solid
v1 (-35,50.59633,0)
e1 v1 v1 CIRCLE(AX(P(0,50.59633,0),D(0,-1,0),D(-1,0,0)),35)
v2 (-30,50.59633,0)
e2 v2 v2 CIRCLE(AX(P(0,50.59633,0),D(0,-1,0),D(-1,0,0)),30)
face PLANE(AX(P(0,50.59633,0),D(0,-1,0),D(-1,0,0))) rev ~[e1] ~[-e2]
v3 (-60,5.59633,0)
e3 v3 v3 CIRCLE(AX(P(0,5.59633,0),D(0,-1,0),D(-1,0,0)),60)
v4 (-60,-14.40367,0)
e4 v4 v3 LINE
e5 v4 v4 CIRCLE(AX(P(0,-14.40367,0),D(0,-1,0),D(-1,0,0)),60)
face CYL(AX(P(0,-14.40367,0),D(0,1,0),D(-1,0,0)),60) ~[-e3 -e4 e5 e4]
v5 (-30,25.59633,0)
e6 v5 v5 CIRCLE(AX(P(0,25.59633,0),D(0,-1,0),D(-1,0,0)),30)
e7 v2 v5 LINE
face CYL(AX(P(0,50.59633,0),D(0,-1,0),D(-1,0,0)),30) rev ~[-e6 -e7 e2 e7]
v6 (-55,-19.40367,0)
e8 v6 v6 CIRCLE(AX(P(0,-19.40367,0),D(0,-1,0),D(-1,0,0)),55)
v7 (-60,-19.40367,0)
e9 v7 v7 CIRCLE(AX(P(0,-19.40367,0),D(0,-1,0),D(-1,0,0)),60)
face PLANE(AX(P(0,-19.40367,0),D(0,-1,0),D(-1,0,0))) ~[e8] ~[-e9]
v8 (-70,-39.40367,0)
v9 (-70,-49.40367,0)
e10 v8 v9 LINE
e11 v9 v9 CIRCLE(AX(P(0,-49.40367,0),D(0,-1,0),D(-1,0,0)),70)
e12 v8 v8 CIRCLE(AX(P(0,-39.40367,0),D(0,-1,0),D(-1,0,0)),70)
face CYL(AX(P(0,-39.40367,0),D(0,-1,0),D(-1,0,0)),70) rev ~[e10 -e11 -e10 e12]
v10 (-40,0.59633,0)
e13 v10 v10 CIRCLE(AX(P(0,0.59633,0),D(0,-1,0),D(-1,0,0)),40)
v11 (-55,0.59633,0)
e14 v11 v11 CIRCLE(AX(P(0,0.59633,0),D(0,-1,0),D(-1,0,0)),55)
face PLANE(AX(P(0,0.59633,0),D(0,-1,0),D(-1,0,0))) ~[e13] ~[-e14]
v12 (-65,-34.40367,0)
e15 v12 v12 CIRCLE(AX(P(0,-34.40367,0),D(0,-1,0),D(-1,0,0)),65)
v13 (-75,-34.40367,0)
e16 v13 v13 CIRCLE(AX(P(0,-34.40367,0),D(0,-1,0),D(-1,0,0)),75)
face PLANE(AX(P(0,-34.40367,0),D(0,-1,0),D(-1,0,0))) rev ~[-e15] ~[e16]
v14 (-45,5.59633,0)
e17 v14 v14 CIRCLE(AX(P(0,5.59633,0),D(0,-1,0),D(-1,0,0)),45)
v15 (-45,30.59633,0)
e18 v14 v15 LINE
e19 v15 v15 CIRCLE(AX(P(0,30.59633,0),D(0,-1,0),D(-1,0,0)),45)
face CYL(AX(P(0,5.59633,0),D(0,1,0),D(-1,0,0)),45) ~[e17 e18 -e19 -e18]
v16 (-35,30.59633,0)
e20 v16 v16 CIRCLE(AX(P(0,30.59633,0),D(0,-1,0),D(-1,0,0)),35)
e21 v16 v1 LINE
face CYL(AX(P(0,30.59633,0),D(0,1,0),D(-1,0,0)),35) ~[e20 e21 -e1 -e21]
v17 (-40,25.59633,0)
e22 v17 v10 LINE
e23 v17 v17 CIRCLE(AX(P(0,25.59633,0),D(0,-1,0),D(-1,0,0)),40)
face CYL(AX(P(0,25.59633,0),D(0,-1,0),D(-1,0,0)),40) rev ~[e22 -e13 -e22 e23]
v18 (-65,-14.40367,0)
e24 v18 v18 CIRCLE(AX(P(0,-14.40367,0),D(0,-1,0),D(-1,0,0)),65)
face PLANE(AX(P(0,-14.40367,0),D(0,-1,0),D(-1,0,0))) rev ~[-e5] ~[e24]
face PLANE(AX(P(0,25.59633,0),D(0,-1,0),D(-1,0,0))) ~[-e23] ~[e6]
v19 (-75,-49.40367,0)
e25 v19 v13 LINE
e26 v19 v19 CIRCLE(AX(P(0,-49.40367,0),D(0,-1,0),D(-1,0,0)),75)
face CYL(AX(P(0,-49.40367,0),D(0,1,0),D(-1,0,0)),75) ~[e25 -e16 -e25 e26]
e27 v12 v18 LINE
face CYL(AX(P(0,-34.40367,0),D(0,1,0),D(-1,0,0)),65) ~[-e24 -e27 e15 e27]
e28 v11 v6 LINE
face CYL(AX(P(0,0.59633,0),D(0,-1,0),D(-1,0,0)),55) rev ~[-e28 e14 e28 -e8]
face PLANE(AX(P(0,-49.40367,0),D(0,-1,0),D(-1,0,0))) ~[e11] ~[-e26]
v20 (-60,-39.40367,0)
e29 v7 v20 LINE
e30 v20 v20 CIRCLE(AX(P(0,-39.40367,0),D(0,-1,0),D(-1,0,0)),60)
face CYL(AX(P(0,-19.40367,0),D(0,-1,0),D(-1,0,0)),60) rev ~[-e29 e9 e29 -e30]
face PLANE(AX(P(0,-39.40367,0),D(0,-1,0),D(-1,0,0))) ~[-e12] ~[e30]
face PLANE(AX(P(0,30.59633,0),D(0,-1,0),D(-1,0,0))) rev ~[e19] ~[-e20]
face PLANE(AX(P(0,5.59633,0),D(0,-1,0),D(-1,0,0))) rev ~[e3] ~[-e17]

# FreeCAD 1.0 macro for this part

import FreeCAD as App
import Part
import Sketcher
Q = App.Units.Quantity


def add_polygon(sketch, points):
    """Adds a closed chain of lines whose ends are joined by coincident constraints."""
    first, n = sketch.GeometryCount, len(points)
    for a, b in zip(points, points[1:] + points[:1]):
        sketch.addGeometry(Part.LineSegment(App.Vector(*a, 0), App.Vector(*b, 0)), False)
    for i in range(n):
        sketch.addConstraint(Sketcher.Constraint("Coincident", first + i, 2, first + (i + 1) % n, 1))

doc = App.newDocument("Part")
body = doc.addObject("PartDesign::Body", "Body")

# Sketch on XY plane
sketch1 = doc.addObject("Sketcher::SketchObject", "Sketch")
body.addObject(sketch1)
sketch1.AttachmentSupport = (doc.XY_Plane, [""])
sketch1.MapMode = "FlatFace"
add_polygon(sketch1, [(-75, -34.40367), (-75, -49.40367), (-70, -49.40367), (-70, -39.40367), (-60, -39.40367), (-60, -19.40367), (-55, -19.40367), (-55, 0.59633), (-40, 0.59633), (-40, 25.59633), (-30, 25.59633), (-30, 50.59633), (-35, 50.59633), (-35, 30.59633), (-45, 30.59633), (-45, 5.59633), (-60, 5.59633), (-60, -14.40367), (-65, -14.40367), (-65, -34.40367)])  # lines 0-19
sketch1.addConstraint(Sketcher.Constraint("Vertical", 0))
sketch1.addConstraint(Sketcher.Constraint("Horizontal", 1))
sketch1.addConstraint(Sketcher.Constraint("Vertical", 2))
sketch1.addConstraint(Sketcher.Constraint("Horizontal", 3))
sketch1.addConstraint(Sketcher.Constraint("Vertical", 4))
sketch1.addConstraint(Sketcher.Constraint("Horizontal", 5))
sketch1.addConstraint(Sketcher.Constraint("Vertical", 6))
sketch1.addConstraint(Sketcher.Constraint("Horizontal", 7))
sketch1.addConstraint(Sketcher.Constraint("Vertical", 8))
sketch1.addConstraint(Sketcher.Constraint("Horizontal", 9))
sketch1.addConstraint(Sketcher.Constraint("Vertical", 10))
sketch1.addConstraint(Sketcher.Constraint("Horizontal", 11))
sketch1.addConstraint(Sketcher.Constraint("Vertical", 12))
sketch1.addConstraint(Sketcher.Constraint("Horizontal", 13))
sketch1.addConstraint(Sketcher.Constraint("Vertical", 14))
sketch1.addConstraint(Sketcher.Constraint("Horizontal", 15))
sketch1.addConstraint(Sketcher.Constraint("Vertical", 16))
sketch1.addConstraint(Sketcher.Constraint("Horizontal", 17))
sketch1.addConstraint(Sketcher.Constraint("Vertical", 18))
sketch1.addConstraint(Sketcher.Constraint("Horizontal", 19))
sketch1.addConstraint(Sketcher.Constraint("Vertical", 4, 2, 15, 2))
sketch1.addConstraint(Sketcher.Constraint("Equal", 1, 5))
sketch1.addConstraint(Sketcher.Constraint("Equal", 3, 9))
sketch1.addConstraint(Sketcher.Constraint("Equal", 5, 11))
sketch1.addConstraint(Sketcher.Constraint("Equal", 9, 13))
sketch1.addConstraint(Sketcher.Constraint("Equal", 11, 17))
sketch1.addConstraint(Sketcher.Constraint("Equal", 15, 0))
sketch1.addConstraint(Sketcher.Constraint("Equal", 19, 2))
sketch1.addConstraint(Sketcher.Constraint("Equal", 4, 6))
sketch1.addConstraint(Sketcher.Constraint("Equal", 8, 10))
sketch1.addConstraint(Sketcher.Constraint("Equal", 6, 12))
sketch1.addConstraint(Sketcher.Constraint("Equal", 10, 14))
sketch1.addConstraint(Sketcher.Constraint("Equal", 12, 16))
sketch1.addConstraint(Sketcher.Constraint("Equal", 16, 18))
sketch1.addConstraint(Sketcher.Constraint("DistanceX", 1, 1, 1, 2, Q("5 mm")))
sketch1.addConstraint(Sketcher.Constraint("DistanceX", 3, 1, 3, 2, Q("10 mm")))
sketch1.addConstraint(Sketcher.Constraint("DistanceX", 7, 1, 7, 2, Q("15 mm")))
sketch1.addConstraint(Sketcher.Constraint("DistanceY", 4, 1, 4, 2, Q("20 mm")))
sketch1.addConstraint(Sketcher.Constraint("DistanceX", 0, 2, -1, 1, Q("75 mm")))
sketch1.addConstraint(Sketcher.Constraint("DistanceY", 0, 2, -1, 1, Q("49.40367 mm")))
revolution = doc.addObject("PartDesign::Revolution", "Revolution")
body.addObject(revolution)
revolution.Profile = sketch1
revolution.ReferenceAxis = (sketch1, ["V_Axis"])
revolution.Angle = 360

doc.recompute()
